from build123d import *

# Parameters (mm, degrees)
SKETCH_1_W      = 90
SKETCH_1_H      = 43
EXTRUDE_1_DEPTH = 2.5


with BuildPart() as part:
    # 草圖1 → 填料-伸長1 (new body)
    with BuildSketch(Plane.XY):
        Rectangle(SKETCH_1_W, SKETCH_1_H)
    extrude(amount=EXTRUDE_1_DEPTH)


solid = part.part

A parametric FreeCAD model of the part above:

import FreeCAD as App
import Part
import Sketcher
from FreeCAD import Vector
Q = App.Units.Quantity

doc = App.newDocument("Part")
body = doc.addObject("PartDesign::Body", "Body")

sketch1 = body.newObject("Sketcher::SketchObject", "Sketch")
sketch1.AttachmentSupport = (doc.getObject("XY_Plane"), [""])
sketch1.MapMode = "FlatFace"
sketch1.addGeometry([
    Part.LineSegment(Vector(-45, 21.5, 0), Vector(-45, -21.5, 0)),
    Part.LineSegment(Vector(-45, -21.5, 0), Vector(45, -21.5, 0)),
    Part.LineSegment(Vector(45, -21.5, 0), Vector(45, 21.5, 0)),
    Part.LineSegment(Vector(45, 21.5, 0), Vector(-45, 21.5, 0)),
], False)
sketch1.addConstraint([
    Sketcher.Constraint("Coincident", 0, 2, 1, 1),
    Sketcher.Constraint("Coincident", 1, 2, 2, 1),
    Sketcher.Constraint("Coincident", 2, 2, 3, 1),
    Sketcher.Constraint("Coincident", 3, 2, 0, 1),
    Sketcher.Constraint("Vertical", 0),
    Sketcher.Constraint("Horizontal", 1),
    Sketcher.Constraint("Vertical", 2),
    Sketcher.Constraint("Horizontal", 3),
    Sketcher.Constraint("Symmetric", 0, 2, 2, 2, -1, 1),
    Sketcher.Constraint("DistanceX", 1, 1, 1, 2, Q("90 mm")),
    Sketcher.Constraint("DistanceY", 0, 2, 0, 1, Q("43 mm")),
])
pad1 = body.newObject("PartDesign::Pad", "Pad")
pad1.Profile = sketch1
pad1.Length = 2.5

doc.recompute()
